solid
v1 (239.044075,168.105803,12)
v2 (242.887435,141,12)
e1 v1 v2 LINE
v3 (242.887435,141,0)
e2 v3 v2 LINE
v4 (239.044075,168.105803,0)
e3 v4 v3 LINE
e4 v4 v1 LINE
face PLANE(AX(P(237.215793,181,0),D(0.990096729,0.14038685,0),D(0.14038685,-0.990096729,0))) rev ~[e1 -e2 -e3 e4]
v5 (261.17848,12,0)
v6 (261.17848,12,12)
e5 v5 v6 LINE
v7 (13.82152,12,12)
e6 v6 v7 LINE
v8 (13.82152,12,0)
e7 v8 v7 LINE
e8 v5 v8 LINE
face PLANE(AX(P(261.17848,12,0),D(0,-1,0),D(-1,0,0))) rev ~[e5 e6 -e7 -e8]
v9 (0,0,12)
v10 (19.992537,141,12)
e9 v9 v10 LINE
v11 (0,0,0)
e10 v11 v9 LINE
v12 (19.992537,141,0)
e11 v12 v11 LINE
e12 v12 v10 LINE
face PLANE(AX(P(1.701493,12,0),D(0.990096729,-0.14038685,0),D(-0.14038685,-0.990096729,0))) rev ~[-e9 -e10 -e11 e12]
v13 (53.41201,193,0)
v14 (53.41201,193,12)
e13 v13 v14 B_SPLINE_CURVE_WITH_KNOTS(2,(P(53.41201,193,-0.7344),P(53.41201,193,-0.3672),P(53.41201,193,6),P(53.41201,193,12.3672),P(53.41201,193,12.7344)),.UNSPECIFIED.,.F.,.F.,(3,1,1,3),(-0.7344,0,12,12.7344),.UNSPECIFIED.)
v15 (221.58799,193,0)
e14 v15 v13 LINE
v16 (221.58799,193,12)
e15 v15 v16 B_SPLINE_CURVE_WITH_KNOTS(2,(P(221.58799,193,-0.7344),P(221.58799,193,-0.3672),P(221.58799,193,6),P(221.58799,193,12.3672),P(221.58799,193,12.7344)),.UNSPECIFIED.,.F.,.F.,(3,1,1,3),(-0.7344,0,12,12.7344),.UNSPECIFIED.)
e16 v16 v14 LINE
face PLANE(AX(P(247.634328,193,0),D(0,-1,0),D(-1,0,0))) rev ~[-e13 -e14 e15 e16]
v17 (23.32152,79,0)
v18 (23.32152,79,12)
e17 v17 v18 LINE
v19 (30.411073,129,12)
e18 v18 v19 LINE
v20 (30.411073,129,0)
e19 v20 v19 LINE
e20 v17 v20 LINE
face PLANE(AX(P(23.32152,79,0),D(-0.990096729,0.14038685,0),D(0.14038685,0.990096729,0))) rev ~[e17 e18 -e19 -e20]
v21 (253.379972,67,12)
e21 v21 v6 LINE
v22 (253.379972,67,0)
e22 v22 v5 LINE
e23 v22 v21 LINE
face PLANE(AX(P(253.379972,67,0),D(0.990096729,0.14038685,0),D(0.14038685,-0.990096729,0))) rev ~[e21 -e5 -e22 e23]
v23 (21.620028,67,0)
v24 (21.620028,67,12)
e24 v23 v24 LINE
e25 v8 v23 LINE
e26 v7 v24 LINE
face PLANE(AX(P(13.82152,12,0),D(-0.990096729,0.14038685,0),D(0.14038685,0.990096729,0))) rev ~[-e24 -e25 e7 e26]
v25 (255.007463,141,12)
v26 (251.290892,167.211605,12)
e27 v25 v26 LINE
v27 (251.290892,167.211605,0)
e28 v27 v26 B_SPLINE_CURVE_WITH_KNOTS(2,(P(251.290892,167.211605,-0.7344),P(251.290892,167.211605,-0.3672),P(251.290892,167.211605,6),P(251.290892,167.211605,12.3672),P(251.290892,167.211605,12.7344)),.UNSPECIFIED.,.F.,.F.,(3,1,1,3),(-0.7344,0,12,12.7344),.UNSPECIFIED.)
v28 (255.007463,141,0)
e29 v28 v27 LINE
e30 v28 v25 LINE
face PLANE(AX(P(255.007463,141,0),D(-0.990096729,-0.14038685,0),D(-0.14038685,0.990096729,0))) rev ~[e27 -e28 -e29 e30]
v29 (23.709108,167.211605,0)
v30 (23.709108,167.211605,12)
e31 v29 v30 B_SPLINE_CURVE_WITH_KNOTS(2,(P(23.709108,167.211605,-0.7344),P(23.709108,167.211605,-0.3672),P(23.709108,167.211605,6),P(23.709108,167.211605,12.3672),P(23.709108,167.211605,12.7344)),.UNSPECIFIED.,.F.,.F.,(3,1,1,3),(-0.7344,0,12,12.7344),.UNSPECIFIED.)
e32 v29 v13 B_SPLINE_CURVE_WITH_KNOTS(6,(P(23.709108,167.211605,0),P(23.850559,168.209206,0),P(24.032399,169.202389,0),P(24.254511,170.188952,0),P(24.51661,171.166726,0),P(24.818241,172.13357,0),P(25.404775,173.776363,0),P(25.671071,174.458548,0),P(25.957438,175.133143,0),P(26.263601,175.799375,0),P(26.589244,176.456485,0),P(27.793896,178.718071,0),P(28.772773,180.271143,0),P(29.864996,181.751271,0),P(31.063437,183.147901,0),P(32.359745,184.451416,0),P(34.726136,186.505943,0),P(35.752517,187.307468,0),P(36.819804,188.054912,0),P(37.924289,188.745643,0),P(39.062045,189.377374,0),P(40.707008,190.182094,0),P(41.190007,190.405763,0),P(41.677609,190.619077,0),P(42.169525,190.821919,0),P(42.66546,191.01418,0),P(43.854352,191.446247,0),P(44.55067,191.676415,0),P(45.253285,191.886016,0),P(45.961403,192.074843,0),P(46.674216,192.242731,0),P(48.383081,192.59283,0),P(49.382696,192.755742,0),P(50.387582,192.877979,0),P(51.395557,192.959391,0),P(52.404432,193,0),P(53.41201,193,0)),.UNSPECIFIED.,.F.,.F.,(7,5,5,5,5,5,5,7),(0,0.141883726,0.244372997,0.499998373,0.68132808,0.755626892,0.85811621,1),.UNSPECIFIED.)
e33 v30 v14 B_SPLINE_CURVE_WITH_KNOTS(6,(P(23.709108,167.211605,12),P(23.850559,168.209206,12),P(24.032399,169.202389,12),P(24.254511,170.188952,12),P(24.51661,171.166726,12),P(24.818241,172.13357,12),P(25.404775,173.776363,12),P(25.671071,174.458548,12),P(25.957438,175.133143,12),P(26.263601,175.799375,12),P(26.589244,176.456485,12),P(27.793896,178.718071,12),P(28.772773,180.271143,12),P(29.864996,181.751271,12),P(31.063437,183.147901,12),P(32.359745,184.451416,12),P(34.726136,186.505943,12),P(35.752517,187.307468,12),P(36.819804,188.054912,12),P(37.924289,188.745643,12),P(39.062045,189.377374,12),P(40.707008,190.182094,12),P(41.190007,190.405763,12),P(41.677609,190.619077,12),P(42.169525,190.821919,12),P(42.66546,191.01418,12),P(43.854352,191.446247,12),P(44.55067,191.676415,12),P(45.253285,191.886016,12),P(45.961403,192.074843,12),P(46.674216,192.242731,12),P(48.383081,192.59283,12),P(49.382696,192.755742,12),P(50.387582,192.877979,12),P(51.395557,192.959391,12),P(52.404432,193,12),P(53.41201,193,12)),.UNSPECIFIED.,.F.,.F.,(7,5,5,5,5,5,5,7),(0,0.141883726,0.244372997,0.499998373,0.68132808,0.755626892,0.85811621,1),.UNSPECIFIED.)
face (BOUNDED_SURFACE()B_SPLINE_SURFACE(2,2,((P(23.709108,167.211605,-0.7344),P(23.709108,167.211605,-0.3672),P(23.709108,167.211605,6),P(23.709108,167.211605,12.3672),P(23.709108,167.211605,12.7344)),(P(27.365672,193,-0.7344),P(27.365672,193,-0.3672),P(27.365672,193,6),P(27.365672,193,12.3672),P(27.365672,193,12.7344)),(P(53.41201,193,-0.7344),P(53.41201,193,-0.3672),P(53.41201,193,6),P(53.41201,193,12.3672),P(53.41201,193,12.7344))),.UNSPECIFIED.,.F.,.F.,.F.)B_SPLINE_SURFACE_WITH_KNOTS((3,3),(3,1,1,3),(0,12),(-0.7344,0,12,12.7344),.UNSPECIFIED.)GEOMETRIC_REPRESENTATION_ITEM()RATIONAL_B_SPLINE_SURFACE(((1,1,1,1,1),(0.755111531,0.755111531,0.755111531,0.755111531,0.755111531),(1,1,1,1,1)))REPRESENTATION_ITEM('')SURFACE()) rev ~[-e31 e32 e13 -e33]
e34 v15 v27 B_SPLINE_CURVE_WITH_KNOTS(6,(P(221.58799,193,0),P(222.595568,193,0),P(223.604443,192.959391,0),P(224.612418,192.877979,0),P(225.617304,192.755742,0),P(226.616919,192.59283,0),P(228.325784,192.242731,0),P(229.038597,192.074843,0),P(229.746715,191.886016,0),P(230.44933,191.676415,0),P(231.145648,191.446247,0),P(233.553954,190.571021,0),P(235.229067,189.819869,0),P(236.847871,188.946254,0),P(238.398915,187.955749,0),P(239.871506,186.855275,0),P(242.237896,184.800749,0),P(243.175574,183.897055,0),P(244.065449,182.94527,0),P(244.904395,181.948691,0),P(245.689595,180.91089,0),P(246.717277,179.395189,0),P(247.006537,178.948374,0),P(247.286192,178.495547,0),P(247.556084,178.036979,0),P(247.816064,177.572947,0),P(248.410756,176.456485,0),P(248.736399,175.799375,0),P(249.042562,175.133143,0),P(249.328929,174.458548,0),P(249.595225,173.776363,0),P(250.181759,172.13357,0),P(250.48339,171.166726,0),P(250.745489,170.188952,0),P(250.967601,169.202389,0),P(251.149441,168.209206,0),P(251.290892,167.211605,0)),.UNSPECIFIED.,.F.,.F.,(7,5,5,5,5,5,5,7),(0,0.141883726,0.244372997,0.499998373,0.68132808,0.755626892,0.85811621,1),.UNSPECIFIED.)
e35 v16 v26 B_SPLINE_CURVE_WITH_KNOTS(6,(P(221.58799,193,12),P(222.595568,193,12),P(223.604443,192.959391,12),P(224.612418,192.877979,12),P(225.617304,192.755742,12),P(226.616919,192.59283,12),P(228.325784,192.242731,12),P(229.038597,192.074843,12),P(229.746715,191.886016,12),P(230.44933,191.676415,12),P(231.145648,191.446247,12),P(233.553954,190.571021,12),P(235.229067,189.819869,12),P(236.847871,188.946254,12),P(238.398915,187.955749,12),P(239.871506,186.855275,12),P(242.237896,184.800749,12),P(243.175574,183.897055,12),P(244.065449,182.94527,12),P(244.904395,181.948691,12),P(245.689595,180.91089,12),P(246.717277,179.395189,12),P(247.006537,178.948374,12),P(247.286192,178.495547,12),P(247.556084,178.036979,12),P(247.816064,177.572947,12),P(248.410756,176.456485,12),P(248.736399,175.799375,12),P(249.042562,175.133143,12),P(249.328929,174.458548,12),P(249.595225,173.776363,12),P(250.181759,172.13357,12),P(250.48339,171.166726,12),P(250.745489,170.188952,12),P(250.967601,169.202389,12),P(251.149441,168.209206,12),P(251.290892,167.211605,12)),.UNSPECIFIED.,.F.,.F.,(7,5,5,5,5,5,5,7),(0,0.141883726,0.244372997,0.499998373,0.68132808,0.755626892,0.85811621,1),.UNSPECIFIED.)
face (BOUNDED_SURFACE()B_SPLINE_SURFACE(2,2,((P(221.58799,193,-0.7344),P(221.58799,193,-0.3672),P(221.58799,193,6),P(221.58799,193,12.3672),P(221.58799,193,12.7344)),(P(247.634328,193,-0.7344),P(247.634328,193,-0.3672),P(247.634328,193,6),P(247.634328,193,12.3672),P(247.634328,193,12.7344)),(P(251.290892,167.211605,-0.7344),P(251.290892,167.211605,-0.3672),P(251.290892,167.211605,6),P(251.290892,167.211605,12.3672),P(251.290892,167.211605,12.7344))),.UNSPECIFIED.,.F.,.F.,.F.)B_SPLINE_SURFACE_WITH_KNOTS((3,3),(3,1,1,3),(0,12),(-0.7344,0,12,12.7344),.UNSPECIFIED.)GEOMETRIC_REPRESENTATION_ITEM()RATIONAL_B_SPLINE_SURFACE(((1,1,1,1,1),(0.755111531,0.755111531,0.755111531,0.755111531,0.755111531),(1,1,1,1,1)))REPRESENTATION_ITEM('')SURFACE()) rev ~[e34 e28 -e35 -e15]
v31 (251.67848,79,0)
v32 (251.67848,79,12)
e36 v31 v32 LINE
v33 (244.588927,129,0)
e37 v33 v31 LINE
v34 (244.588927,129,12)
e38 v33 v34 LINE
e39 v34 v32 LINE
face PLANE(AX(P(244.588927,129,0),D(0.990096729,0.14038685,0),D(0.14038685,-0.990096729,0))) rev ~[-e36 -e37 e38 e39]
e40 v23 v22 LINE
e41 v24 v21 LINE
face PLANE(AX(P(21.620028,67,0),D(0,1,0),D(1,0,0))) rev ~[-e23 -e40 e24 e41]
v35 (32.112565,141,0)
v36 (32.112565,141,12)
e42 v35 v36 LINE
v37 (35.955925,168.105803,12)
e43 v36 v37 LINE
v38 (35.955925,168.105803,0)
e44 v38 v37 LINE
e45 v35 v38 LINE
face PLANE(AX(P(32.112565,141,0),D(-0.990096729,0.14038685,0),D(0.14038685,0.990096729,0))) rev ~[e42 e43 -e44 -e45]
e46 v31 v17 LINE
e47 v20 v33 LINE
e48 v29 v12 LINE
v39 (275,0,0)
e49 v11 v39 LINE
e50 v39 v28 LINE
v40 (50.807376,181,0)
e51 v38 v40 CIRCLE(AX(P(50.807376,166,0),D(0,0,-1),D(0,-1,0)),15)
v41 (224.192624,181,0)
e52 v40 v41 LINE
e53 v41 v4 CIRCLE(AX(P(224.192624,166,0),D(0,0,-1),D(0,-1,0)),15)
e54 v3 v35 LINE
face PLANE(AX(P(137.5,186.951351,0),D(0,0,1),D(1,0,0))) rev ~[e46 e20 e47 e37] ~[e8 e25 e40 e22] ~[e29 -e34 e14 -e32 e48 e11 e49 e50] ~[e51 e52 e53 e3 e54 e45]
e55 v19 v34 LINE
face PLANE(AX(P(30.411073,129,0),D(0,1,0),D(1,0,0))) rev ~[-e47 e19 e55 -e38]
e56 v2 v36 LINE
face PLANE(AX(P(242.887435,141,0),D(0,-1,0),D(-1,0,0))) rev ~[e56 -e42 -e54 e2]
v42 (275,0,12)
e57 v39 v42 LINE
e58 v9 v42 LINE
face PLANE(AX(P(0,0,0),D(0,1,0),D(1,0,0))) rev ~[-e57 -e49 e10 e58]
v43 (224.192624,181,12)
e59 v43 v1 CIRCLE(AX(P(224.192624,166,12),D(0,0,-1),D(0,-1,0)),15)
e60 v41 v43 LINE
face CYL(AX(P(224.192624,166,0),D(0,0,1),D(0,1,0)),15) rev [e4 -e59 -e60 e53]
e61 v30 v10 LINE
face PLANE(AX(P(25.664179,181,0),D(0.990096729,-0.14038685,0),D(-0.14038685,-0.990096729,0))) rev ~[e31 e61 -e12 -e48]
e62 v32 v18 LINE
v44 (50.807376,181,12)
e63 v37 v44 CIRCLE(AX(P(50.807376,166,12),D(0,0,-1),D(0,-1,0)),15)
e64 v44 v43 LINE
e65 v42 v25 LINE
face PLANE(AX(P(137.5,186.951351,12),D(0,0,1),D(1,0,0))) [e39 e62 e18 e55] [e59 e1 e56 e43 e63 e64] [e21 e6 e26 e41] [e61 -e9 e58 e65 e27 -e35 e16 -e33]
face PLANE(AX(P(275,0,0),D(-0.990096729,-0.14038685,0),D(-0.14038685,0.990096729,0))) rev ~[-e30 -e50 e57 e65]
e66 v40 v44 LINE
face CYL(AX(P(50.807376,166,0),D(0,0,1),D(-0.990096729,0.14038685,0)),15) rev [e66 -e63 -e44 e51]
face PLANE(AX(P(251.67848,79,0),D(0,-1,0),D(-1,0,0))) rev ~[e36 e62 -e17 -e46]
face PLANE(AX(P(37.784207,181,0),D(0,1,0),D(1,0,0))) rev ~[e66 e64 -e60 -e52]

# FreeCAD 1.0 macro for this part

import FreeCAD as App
import Part
import Sketcher

V = App.Vector


def edges_at(feature, points):
    """Names of the edges that pass closest to the given points."""
    edges = feature.Shape.Edges
    near = lambda p: min(range(len(edges)), key=lambda i: edges[i].distToShape(Part.Vertex(*p))[0])
    return sorted({f"Edge{near(p) + 1}" for p in points})

doc = App.newDocument("Part")
body = doc.addObject("PartDesign::Body", "Body")

# Sketch on XY plane
sketch1 = body.newObject("Sketcher::SketchObject", "Sketch")
sketch1.AttachmentSupport = (doc.getObject("XY_Plane"), [""])
sketch1.MapMode = "FlatFace"
sketch1.addGeometry([
    Part.LineSegment(V(1.701493, 12, 0), V(0, 0, 0)),  # 0
    Part.LineSegment(V(0, 0, 0), V(275, 0, 0)),  # 1
    Part.LineSegment(V(275, 0, 0), V(255.007463, 141, 0)),  # 2
    Part.LineSegment(V(255.007463, 141, 0), V(249.335821, 181, 0)),  # 3
    Part.LineSegment(V(249.335821, 181, 0), V(247.634328, 193, 0)),  # 4
    Part.LineSegment(V(247.634328, 193, 0), V(27.365672, 193, 0)),  # 5
    Part.LineSegment(V(27.365672, 193, 0), V(25.664179, 181, 0)),  # 6
    Part.LineSegment(V(25.664179, 181, 0), V(19.992537, 141, 0)),  # 7
    Part.LineSegment(V(19.992537, 141, 0), V(1.701493, 12, 0)),  # 8
    Part.LineSegment(V(251.67848, 79, 0), V(23.32152, 79, 0)),  # 9
    Part.LineSegment(V(23.32152, 79, 0), V(30.411073, 129, 0)),  # 10
    Part.LineSegment(V(30.411073, 129, 0), V(244.588927, 129, 0)),  # 11
    Part.LineSegment(V(244.588927, 129, 0), V(251.67848, 79, 0)),  # 12
    Part.LineSegment(V(32.112565, 141, 0), V(37.784207, 181, 0)),  # 13
    Part.LineSegment(V(37.784207, 181, 0), V(237.215793, 181, 0)),  # 14
    Part.LineSegment(V(237.215793, 181, 0), V(242.887435, 141, 0)),  # 15
    Part.LineSegment(V(242.887435, 141, 0), V(32.112565, 141, 0)),  # 16
    Part.LineSegment(V(13.82152, 12, 0), V(21.620028, 67, 0)),  # 17
    Part.LineSegment(V(21.620028, 67, 0), V(253.379972, 67, 0)),  # 18
    Part.LineSegment(V(253.379972, 67, 0), V(261.17848, 12, 0)),  # 19
    Part.LineSegment(V(261.17848, 12, 0), V(13.82152, 12, 0)),  # 20
], False)
sketch1.addConstraint([
    Sketcher.Constraint("Coincident", 0, 2, 1, 1),
    Sketcher.Constraint("Coincident", 1, 2, 2, 1),
    Sketcher.Constraint("Coincident", 2, 2, 3, 1),
    Sketcher.Constraint("Coincident", 3, 2, 4, 1),
    Sketcher.Constraint("Coincident", 4, 2, 5, 1),
    Sketcher.Constraint("Coincident", 5, 2, 6, 1),
    Sketcher.Constraint("Coincident", 6, 2, 7, 1),
    Sketcher.Constraint("Coincident", 7, 2, 8, 1),
    Sketcher.Constraint("Coincident", 8, 2, 0, 1),
    Sketcher.Constraint("Coincident", 9, 2, 10, 1),
    Sketcher.Constraint("Coincident", 10, 2, 11, 1),
    Sketcher.Constraint("Coincident", 11, 2, 12, 1),
    Sketcher.Constraint("Coincident", 12, 2, 9, 1),
    Sketcher.Constraint("Coincident", 13, 2, 14, 1),
    Sketcher.Constraint("Coincident", 14, 2, 15, 1),
    Sketcher.Constraint("Coincident", 15, 2, 16, 1),
    Sketcher.Constraint("Coincident", 16, 2, 13, 1),
    Sketcher.Constraint("Coincident", 17, 2, 18, 1),
    Sketcher.Constraint("Coincident", 18, 2, 19, 1),
    Sketcher.Constraint("Coincident", 19, 2, 20, 1),
    Sketcher.Constraint("Coincident", 20, 2, 17, 1),
    Sketcher.Constraint("Horizontal", 1),
    Sketcher.Constraint("Horizontal", 5),
    Sketcher.Constraint("Horizontal", 9),
    Sketcher.Constraint("Horizontal", 11),
    Sketcher.Constraint("Horizontal", 14),
    Sketcher.Constraint("Horizontal", 16),
    Sketcher.Constraint("Horizontal", 18),
    Sketcher.Constraint("Horizontal", 20),
    Sketcher.Constraint("Coincident", 0, 2, -1, 1),
    Sketcher.Constraint("Parallel", 2, 3),
    Sketcher.Constraint("Parallel", 3, 4),
    Sketcher.Constraint("Parallel", 0, 6),
    Sketcher.Constraint("Parallel", 6, 7),
    Sketcher.Constraint("Parallel", 7, 8),
    Sketcher.Constraint("Parallel", 8, 10),
    Sketcher.Constraint("Parallel", 4, 12),
    Sketcher.Constraint("Parallel", 10, 13),
    Sketcher.Constraint("Parallel", 12, 15),
    Sketcher.Constraint("Parallel", 13, 17),
    Sketcher.Constraint("Parallel", 15, 19),
    Sketcher.Constraint("Horizontal", 3, 2, 6, 2),
    Sketcher.Constraint("Horizontal", 2, 2, 7, 2),
    Sketcher.Constraint("Horizontal", 6, 2, 13, 2),
    Sketcher.Constraint("Horizontal", 7, 2, 15, 2),
    Sketcher.Constraint("Horizontal", 8, 2, 19, 2),
    Sketcher.Constraint("Equal", 0, 4),
    Sketcher.Constraint("Equal", 4, 6),
    Sketcher.Constraint("DistanceX", 1, 1, 1, 2, 275.0),
    Sketcher.Constraint("DistanceY", -1, 1, 2, 2, 141.0),
    Sketcher.Constraint("DistanceY", -1, 1, 3, 2, 181.0),
    Sketcher.Constraint("DistanceY", -1, 1, 4, 2, 193.0),
    Sketcher.Constraint("DistanceY", -1, 1, 9, 2, 79.0),
    Sketcher.Constraint("DistanceY", -1, 1, 10, 2, 129.0),
    Sketcher.Constraint("DistanceY", -1, 1, 17, 2, 67.0),
    Sketcher.Constraint("DistanceX", 12, 2, 19, 2, 9.5),
    Sketcher.Constraint("DistanceX", 20, 2, 9, 2, 9.5),
    Sketcher.Constraint("Distance", 8, 130.2903),
    Sketcher.Constraint("DistanceX", 9, 2, 9, 1, 228.356959),
    Sketcher.Constraint("DistanceX", 16, 2, 16, 1, 210.77487),
    Sketcher.Constraint("DistanceX", 5, 2, 10, 2, 3.045401),
    Sketcher.Constraint("DistanceX", 7, 2, 13, 2, 17.79167),
])
pad1 = body.newObject("PartDesign::Pad", "Pad")
pad1.Profile = sketch1
pad1.Length = 12
doc.recompute()

fillet = body.newObject("PartDesign::Fillet", "Fillet")
fillet.Base = (pad1, edges_at(pad1, [(27.366, 193, 6), (247.634, 193, 6)]))
fillet.Radius = 30
doc.recompute()

fillet2 = body.newObject("PartDesign::Fillet", "Fillet001")
fillet2.Base = (fillet, edges_at(fillet, [(37.784, 181, 6), (237.216, 181, 6)]))
fillet2.Radius = 15

doc.recompute()
